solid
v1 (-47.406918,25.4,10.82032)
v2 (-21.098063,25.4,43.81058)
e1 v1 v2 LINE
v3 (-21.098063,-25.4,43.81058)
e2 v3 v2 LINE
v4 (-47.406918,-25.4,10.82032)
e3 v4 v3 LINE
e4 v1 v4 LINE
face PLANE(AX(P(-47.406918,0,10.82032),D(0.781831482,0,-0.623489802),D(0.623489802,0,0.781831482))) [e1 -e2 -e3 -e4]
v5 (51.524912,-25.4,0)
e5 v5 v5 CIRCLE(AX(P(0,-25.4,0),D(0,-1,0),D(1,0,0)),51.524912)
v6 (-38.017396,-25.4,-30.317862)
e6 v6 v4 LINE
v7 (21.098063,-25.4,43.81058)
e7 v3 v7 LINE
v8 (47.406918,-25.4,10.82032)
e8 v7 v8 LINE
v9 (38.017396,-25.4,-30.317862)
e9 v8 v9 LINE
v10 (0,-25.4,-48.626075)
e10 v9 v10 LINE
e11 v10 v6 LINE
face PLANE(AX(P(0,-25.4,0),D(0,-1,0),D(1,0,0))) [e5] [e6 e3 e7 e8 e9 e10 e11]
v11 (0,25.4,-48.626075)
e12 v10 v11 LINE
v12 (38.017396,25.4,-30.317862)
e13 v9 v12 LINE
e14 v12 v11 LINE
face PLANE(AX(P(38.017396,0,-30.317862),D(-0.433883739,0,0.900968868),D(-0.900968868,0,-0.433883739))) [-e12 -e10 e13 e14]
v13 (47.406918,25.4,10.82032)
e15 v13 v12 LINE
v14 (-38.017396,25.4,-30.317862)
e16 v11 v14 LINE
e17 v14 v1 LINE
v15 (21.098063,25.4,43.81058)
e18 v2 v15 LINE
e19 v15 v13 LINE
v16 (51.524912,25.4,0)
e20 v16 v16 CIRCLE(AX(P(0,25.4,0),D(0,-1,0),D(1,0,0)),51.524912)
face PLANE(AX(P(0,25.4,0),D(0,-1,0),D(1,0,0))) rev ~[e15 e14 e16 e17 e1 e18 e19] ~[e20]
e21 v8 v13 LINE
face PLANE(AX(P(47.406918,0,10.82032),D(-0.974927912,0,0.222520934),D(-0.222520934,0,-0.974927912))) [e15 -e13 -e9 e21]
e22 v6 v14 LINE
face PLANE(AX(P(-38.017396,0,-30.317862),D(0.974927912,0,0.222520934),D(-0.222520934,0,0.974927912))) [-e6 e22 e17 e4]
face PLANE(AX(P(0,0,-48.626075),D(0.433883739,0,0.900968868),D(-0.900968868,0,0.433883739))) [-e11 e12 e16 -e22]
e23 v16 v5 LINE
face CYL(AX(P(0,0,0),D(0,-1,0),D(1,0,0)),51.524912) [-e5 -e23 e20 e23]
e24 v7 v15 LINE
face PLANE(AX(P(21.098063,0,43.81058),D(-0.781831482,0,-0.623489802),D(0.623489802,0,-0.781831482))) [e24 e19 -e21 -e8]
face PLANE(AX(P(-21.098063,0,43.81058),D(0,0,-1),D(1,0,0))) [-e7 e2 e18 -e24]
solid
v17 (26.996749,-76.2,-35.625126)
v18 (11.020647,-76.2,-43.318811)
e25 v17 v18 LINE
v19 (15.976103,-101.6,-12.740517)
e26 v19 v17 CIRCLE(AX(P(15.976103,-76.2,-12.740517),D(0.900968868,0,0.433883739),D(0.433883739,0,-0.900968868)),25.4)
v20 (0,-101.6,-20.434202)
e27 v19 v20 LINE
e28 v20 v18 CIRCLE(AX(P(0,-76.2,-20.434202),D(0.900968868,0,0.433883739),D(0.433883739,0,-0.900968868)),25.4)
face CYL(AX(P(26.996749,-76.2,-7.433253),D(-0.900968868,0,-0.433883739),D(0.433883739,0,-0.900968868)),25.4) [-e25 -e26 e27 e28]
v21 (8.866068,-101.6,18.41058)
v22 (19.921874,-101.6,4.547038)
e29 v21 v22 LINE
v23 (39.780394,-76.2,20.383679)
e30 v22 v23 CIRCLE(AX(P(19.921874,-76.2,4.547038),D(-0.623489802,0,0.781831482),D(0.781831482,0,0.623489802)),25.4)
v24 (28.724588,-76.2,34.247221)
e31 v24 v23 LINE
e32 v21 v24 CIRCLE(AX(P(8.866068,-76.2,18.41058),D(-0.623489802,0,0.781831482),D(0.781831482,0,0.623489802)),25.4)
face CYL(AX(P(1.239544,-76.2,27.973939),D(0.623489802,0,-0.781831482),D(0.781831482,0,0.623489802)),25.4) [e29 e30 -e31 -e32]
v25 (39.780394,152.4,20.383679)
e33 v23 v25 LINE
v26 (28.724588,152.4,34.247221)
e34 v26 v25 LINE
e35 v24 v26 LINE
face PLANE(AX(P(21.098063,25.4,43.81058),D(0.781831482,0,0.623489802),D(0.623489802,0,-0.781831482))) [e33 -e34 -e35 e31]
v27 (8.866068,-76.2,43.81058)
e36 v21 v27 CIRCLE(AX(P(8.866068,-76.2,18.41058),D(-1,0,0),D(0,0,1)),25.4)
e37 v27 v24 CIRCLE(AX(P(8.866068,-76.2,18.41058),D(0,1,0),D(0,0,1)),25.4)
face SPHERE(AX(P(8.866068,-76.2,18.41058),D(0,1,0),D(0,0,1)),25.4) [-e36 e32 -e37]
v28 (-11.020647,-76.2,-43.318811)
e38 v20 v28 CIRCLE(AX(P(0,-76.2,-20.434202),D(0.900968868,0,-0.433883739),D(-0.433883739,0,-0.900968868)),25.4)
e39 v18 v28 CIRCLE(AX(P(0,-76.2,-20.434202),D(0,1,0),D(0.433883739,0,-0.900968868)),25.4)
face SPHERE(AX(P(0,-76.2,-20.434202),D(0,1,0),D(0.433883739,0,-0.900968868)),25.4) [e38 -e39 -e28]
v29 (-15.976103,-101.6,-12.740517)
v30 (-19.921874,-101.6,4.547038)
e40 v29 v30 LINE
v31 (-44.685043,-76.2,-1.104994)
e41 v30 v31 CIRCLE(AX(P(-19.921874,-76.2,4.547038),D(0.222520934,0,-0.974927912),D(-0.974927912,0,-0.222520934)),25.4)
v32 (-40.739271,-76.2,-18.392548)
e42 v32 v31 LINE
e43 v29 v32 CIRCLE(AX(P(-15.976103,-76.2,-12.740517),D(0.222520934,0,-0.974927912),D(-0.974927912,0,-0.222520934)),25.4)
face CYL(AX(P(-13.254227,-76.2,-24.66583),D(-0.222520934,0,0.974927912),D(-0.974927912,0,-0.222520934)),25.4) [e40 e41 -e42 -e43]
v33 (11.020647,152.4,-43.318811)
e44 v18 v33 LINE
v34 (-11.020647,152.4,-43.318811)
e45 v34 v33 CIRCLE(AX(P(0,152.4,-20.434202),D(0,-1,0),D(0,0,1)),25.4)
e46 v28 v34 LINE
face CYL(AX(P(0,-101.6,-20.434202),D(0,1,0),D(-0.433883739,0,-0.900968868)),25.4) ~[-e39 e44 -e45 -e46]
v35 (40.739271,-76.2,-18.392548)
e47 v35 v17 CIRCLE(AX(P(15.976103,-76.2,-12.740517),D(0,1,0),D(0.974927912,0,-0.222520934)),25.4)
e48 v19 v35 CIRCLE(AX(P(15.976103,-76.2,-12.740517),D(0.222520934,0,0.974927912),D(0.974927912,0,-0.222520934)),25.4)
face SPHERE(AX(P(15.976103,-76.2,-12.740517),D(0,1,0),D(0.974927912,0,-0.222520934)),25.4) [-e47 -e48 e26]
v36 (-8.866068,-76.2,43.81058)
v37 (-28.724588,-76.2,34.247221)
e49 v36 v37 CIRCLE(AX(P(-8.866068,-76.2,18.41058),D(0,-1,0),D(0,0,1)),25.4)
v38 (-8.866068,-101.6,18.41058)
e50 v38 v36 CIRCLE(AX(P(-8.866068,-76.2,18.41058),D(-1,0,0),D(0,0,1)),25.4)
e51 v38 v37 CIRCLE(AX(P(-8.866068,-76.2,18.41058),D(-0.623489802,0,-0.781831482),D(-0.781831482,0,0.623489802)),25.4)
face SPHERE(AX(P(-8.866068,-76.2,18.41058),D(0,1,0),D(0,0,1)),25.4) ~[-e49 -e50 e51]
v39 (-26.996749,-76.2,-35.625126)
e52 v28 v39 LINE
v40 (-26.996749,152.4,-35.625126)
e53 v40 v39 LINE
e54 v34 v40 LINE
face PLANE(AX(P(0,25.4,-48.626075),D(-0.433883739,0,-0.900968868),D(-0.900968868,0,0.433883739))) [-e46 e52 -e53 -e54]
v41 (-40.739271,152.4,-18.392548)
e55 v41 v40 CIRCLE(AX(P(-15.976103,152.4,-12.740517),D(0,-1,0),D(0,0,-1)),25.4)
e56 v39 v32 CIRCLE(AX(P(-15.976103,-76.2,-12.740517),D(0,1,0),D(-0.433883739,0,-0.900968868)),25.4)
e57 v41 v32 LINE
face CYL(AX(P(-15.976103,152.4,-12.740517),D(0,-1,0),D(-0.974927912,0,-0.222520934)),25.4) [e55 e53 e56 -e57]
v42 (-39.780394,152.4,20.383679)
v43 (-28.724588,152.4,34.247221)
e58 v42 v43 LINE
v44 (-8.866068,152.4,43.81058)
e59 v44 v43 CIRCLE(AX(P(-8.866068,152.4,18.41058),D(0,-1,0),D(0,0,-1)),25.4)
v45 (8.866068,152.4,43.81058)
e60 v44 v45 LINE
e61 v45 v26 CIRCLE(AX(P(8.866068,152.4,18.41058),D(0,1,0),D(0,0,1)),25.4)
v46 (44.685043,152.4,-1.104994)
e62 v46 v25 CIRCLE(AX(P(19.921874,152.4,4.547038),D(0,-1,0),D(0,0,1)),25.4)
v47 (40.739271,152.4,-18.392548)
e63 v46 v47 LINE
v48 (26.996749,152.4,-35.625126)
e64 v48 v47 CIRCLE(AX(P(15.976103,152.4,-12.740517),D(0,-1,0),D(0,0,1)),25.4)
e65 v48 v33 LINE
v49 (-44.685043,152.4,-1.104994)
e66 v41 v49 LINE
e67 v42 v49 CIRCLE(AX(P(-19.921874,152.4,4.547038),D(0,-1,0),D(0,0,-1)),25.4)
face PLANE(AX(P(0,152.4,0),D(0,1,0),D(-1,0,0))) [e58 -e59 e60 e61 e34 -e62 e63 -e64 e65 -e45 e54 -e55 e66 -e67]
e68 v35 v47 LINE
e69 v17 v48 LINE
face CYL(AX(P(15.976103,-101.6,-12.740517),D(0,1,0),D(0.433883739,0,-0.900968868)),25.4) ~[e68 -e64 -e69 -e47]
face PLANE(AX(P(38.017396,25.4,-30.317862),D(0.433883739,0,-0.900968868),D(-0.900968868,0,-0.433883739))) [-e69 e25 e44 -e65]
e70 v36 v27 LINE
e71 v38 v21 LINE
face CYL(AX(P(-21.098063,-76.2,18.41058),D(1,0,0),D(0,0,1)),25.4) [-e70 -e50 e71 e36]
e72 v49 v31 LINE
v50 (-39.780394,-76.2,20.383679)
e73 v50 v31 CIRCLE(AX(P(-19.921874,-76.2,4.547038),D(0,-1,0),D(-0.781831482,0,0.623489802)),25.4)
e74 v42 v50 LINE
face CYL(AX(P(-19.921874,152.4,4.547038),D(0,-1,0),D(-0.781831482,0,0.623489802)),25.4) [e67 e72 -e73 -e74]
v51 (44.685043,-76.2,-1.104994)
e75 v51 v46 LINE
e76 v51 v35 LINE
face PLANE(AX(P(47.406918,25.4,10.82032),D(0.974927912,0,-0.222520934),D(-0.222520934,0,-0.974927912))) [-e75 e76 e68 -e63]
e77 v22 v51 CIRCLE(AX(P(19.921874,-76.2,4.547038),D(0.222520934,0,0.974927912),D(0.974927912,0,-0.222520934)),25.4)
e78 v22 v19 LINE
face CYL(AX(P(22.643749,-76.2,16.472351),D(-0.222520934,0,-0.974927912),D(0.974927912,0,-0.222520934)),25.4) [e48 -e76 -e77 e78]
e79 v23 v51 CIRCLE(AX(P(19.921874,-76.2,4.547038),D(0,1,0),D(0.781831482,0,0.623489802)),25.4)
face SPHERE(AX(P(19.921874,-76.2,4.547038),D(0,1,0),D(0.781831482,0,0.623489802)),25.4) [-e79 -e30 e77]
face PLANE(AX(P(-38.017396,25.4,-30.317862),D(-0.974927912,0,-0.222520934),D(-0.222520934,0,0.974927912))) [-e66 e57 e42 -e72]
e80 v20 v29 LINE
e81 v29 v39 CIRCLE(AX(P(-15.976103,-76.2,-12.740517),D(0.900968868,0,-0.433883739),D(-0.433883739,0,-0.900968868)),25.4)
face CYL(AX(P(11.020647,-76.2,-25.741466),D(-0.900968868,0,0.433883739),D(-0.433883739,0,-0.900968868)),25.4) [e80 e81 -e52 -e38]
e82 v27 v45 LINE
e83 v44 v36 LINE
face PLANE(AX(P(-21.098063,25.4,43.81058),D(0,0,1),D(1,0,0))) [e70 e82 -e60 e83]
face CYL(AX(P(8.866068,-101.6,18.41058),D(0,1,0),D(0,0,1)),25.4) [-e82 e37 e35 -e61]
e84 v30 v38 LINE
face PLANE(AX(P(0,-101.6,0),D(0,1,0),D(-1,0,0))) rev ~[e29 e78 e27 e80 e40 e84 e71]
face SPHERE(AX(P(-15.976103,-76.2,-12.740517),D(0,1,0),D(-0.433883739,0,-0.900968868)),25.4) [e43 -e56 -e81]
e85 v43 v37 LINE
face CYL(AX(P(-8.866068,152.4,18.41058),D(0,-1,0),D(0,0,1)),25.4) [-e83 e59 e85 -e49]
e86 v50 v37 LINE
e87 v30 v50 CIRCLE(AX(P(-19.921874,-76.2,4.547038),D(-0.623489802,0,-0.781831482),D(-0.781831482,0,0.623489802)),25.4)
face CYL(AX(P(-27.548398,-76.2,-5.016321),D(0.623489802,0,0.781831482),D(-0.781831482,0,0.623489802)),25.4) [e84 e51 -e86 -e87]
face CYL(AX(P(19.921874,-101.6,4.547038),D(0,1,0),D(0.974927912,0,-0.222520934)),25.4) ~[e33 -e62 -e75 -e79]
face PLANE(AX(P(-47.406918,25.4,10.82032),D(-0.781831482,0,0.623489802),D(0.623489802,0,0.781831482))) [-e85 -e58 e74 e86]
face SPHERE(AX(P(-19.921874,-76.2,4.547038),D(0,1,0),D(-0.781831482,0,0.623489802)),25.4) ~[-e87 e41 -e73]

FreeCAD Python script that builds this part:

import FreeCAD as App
import Part
import Sketcher
from FreeCAD import Vector
Q = App.Units.Quantity


def edges_at(feature, points):
    """Names of the edges that pass closest to the given points."""
    edges = feature.Shape.Edges
    near = lambda p: min(range(len(edges)), key=lambda i: edges[i].distToShape(Part.Vertex(*p))[0])
    return sorted({f"Edge{near(p) + 1}" for p in points})


def add_polygon(sketch, points):
    """Adds a closed chain of lines whose ends are joined by coincident constraints."""
    first, n = sketch.GeometryCount, len(points)
    for a, b in zip(points, points[1:] + points[:1]):
        sketch.addGeometry(Part.LineSegment(App.Vector(*a, 0), App.Vector(*b, 0)), False)
    for i in range(n):
        sketch.addConstraint(Sketcher.Constraint("Coincident", first + i, 2, first + (i + 1) % n, 1))

doc = App.newDocument("Part")
body = doc.addObject("PartDesign::Body", "Body")

# Sketch on XZ plane
sketch1 = body.newObject("Sketcher::SketchObject", "Sketch")
sketch1.AttachmentSupport = (doc.getObject("XZ_Plane"), [""])
sketch1.MapMode = "FlatFace"
sketch1.addGeometry(Part.Circle(Vector(0, 0, 0), Vector(0, 0, 1), 51.524912), False)  # 0
add_polygon(sketch1, [(-38.017396, -30.317862), (-47.406918, 10.82032), (-21.098063, 43.81058), (21.098063, 43.81058), (47.406918, 10.82032), (38.017396, -30.317862), (0, -48.626075)])  # lines 1-7
sketch1.addConstraint(Sketcher.Constraint("Horizontal", 3))
sketch1.addConstraint(Sketcher.Constraint("Coincident", 0, 3, -1, 1))
sketch1.addConstraint(Sketcher.Constraint("Symmetric", 1, 2, 4, 2, -2))
sketch1.addConstraint(Sketcher.Constraint("Symmetric", 5, 2, 7, 2, -2))
sketch1.addConstraint(Sketcher.Constraint("PointOnObject", 6, 2, -2))
sketch1.addConstraint(Sketcher.Constraint("Equal", 1, 2))
sketch1.addConstraint(Sketcher.Constraint("Equal", 2, 4))
sketch1.addConstraint(Sketcher.Constraint("Equal", 5, 6))
sketch1.addConstraint(Sketcher.Constraint("Diameter", 0, Q("103.049824 mm")))
sketch1.addConstraint(Sketcher.Constraint("DistanceX", 3, 1, 3, 2, Q("42.196127 mm")))
sketch1.addConstraint(Sketcher.Constraint("DistanceY", -1, 1, 1, 2, Q("10.82032 mm")))
sketch1.addConstraint(Sketcher.Constraint("DistanceY", -1, 1, 2, 2, Q("43.81058 mm")))
sketch1.addConstraint(Sketcher.Constraint("DistanceY", 5, 2, -1, 1, Q("30.317862 mm")))
sketch1.addConstraint(Sketcher.Constraint("DistanceX", 1, 2, 3, 2, Q("68.504981 mm")))
pad1 = body.newObject("PartDesign::Pad", "Pad")
pad1.Profile = sketch1
pad1.Length = Q("2 in")
pad1.Midplane = True
body2 = doc.addObject("PartDesign::Body", "Body001")

# Sketch on XZ plane
sketch2 = body2.newObject("Sketcher::SketchObject", "Sketch001")
sketch2.AttachmentSupport = (doc.getObject("XZ_Plane001"), [""])
sketch2.MapMode = "FlatFace"
sketch2.AttachmentOffset = App.Placement(Vector(0, 0, -1 * 25.4), App.Rotation())
add_polygon(sketch2, [(-21.098063, 43.81058), (21.098063, 43.81058), (47.406918, 10.82032), (38.017396, -30.317862), (0, -48.626075), (-38.017396, -30.317862), (-47.406918, 10.82032)])  # lines 0-6
sketch2.addConstraint(Sketcher.Constraint("Horizontal", 0))
sketch2.addConstraint(Sketcher.Constraint("Symmetric", 2, 2, 4, 2, -2))
sketch2.addConstraint(Sketcher.Constraint("Symmetric", 1, 2, 5, 2, -2))
sketch2.addConstraint(Sketcher.Constraint("PointOnObject", 3, 2, -2))
sketch2.addConstraint(Sketcher.Constraint("Equal", 1, 2))
sketch2.addConstraint(Sketcher.Constraint("Equal", 2, 3))
sketch2.addConstraint(Sketcher.Constraint("Equal", 5, 6))
sketch2.addConstraint(Sketcher.Constraint("DistanceX", 0, 1, 0, 2, Q("42.196127 mm")))
sketch2.addConstraint(Sketcher.Constraint("DistanceY", -1, 1, 0, 2, Q("43.81058 mm")))
sketch2.addConstraint(Sketcher.Constraint("DistanceY", -1, 1, 1, 2, Q("10.82032 mm")))
sketch2.addConstraint(Sketcher.Constraint("DistanceY", 2, 2, -1, 1, Q("30.317862 mm")))
sketch2.addConstraint(Sketcher.Constraint("DistanceX", 2, 2, 1, 2, Q("9.389522 mm")))
pad2 = body2.newObject("PartDesign::Pad", "Pad001")
pad2.Profile = sketch2
pad2.Length = Q("10 in")
pad2.Midplane = True
doc.recompute()

fillet = body2.newObject("PartDesign::Fillet", "Fillet")
fillet.Base = (pad2, edges_at(pad2, [
    (0, -101.6, 43.811),
    (-34.252, -101.6, 27.315),
    (34.252, -101.6, 27.315),
    (42.712, -101.6, -9.749),
    (19.009, -101.6, -39.472),
    (-19.009, -101.6, -39.472),
    (-42.712, -101.6, -9.749),
    (47.407, 25.4, 10.82),
    (21.098, 25.4, 43.811),
    (-21.098, 25.4, 43.811),
    (-47.407, 25.4, 10.82),
    (-38.017, 25.4, -30.318),
    (38.017, 25.4, -30.318),
    (0, 25.4, -48.626),
]))
fillet.Radius = Q("1 in")

doc.recompute()
